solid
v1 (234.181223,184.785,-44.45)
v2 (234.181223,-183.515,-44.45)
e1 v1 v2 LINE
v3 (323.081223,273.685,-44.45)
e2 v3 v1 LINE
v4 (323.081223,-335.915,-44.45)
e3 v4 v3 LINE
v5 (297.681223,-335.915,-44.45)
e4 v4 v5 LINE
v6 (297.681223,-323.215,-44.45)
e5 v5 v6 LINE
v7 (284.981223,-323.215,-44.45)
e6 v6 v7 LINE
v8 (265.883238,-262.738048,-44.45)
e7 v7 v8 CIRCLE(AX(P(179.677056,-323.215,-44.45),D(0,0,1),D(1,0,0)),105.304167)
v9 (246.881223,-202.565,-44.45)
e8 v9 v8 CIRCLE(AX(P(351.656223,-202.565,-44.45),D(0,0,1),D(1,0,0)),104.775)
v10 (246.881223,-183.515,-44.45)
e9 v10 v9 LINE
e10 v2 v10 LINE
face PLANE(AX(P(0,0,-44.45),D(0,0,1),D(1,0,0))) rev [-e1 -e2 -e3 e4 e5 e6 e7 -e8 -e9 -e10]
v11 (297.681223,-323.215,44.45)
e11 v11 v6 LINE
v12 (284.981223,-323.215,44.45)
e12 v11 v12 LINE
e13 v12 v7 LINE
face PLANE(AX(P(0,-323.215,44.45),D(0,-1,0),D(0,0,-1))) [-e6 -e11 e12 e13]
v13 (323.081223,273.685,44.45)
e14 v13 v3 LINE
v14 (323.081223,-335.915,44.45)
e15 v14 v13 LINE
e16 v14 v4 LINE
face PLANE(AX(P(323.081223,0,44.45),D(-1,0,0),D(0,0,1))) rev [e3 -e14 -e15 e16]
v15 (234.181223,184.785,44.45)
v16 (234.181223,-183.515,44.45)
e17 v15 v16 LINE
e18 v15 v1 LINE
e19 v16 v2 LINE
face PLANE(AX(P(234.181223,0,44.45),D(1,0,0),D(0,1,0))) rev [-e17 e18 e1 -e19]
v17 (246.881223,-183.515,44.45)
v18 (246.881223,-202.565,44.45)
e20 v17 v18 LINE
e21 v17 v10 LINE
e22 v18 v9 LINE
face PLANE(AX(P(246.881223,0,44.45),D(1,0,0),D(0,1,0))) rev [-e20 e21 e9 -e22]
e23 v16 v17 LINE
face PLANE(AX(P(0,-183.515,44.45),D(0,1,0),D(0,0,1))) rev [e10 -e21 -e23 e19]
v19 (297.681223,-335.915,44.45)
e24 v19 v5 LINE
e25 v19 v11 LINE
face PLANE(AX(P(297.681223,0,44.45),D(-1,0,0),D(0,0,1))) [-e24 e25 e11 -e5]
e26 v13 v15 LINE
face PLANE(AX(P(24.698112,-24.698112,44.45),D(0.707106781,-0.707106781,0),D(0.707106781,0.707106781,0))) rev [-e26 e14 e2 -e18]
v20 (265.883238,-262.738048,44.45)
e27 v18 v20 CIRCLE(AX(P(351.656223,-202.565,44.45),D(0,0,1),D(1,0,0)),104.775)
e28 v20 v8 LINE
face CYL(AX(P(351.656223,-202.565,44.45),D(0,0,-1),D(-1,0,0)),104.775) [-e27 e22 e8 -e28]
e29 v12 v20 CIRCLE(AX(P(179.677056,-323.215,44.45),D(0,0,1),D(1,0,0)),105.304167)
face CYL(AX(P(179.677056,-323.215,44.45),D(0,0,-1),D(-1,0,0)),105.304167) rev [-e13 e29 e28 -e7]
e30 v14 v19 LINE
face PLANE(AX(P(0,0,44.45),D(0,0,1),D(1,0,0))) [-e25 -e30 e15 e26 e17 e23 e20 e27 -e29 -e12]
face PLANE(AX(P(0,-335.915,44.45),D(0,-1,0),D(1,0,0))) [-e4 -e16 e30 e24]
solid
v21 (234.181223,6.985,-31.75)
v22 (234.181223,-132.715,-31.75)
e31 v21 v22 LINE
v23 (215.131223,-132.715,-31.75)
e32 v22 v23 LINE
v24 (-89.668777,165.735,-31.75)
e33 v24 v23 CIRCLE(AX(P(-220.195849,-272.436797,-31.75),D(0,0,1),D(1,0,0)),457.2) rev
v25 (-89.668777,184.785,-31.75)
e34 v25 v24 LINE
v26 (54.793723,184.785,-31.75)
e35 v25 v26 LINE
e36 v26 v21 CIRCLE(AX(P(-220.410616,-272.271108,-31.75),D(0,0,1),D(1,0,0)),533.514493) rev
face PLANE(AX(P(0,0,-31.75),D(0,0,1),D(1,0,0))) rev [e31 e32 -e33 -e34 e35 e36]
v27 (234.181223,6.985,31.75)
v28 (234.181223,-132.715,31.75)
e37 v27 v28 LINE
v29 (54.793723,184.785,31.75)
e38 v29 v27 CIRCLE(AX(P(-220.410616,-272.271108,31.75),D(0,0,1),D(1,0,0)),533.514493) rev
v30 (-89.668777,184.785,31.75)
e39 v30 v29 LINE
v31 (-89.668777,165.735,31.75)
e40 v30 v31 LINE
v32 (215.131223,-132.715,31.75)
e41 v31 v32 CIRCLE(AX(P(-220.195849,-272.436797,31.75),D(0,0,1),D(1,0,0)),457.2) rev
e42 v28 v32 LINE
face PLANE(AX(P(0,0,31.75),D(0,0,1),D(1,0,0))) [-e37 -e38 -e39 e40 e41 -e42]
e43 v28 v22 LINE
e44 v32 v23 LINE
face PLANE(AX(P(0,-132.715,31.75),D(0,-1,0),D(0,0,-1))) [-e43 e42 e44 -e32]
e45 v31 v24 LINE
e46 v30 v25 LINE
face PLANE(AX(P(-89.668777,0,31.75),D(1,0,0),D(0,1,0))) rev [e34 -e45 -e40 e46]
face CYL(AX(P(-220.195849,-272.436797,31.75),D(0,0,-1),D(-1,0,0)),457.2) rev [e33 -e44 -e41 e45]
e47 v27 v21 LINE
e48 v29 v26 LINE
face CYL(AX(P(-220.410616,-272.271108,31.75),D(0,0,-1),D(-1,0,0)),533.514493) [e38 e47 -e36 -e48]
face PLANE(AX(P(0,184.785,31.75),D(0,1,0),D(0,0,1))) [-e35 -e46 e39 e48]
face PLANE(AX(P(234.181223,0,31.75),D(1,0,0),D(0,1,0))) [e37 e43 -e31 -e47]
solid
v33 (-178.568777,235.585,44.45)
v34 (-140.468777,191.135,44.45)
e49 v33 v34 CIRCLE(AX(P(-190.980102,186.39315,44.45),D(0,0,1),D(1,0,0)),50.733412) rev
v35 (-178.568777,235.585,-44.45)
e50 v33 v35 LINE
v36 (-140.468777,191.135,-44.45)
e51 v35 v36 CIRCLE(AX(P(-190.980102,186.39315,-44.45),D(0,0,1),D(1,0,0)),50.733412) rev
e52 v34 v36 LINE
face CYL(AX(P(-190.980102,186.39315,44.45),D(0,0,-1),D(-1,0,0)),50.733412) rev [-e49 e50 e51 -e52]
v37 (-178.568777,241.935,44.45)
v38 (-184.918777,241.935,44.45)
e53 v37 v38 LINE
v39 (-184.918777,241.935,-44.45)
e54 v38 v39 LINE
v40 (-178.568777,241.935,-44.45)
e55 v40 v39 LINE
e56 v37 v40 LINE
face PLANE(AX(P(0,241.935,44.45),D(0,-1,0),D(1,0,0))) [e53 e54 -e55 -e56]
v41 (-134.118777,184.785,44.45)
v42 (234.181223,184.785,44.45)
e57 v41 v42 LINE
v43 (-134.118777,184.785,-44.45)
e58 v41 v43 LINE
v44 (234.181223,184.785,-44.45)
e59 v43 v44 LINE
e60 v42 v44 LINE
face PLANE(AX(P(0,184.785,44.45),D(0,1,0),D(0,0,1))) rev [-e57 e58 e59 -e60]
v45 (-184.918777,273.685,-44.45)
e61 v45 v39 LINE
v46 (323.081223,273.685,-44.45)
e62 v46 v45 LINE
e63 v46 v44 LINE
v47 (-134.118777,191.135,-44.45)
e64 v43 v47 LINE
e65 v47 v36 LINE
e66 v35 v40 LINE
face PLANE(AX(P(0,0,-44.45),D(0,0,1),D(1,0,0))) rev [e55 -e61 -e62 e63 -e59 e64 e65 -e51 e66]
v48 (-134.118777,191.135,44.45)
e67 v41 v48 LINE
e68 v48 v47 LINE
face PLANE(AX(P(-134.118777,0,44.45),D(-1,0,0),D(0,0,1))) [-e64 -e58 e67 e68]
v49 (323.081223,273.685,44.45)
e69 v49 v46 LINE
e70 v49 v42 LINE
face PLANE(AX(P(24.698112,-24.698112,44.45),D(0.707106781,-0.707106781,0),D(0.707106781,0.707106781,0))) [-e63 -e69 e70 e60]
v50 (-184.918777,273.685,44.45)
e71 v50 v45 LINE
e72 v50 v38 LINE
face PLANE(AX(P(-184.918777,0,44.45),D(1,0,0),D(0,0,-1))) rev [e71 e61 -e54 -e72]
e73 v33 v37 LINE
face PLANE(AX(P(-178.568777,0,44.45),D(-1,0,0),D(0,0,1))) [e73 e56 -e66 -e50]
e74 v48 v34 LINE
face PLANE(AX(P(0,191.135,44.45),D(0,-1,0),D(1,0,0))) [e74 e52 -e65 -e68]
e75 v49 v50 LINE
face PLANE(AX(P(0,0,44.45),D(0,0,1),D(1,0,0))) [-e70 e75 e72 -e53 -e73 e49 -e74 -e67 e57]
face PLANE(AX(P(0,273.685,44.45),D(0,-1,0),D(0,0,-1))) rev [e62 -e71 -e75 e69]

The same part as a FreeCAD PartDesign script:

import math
import FreeCAD as App
import Part
import Sketcher
from FreeCAD import Vector
Q = App.Units.Quantity

doc = App.newDocument("Part")
params = doc.addObject("Spreadsheet::Sheet", "Params")
for row, (alias, value) in enumerate([
    ("sketch1_width", "20 in"),
    ("sketch1_width2", "14.5 in"),
    ("sketch1_width3", "0.25 in"),
    ("pad1_length", "3.5 in"),
    ("sketch2_radius", "18 in"),
    ("sketch2_height", "5.5 in"),
    ("sketch2_width", "0.75 in"),
    ("sketch2_width2", "5.6875 in"),
    ("pad2_length", "2.5 in"),
    ("sketch3_width", "1 in"),
    ("sketch3_height", "24 in"),
    ("sketch3_width2", "0.5 in"),
    ("sketch3_height2", "14.5 in"),
    ("sketch3_radius", "4.125 in"),
    ("pad3_length", "3.5 in"),
], start=1):
    params.set(f"A{row}", alias)
    params.set(f"B{row}", "=" + value)
    params.setAlias(f"B{row}", alias)

body = doc.addObject("PartDesign::Body", "Body")

# Sketch on XY plane
sketch1 = body.newObject("Sketcher::SketchObject", "Sketch")
sketch1.AttachmentSupport = (doc.getObject("XY_Plane"), [""])
sketch1.MapMode = "FlatFace"
sketch1.addGeometry([
    Part.LineSegment(Vector(-178.568777, 241.935, 0), Vector(-178.568777, 235.585, 0)),  # 0
    Part.ArcOfCircle(Part.Circle(Vector(-190.980102, 186.39315, 0), Vector(0, 0, 1), 50.733412), math.radians(5.363036), math.radians(75.839553)),  # 1
    Part.LineSegment(Vector(-140.468777, 191.135, 0), Vector(-134.118777, 191.135, 0)),  # 2
    Part.LineSegment(Vector(-134.118777, 191.135, 0), Vector(-134.118777, 184.785, 0)),  # 3
    Part.LineSegment(Vector(-134.118777, 184.785, 0), Vector(234.181223, 184.785, 0)),  # 4
    Part.LineSegment(Vector(234.181223, 184.785, 0), Vector(323.081223, 273.685, 0)),  # 5
    Part.LineSegment(Vector(323.081223, 273.685, 0), Vector(-184.918777, 273.685, 0)),  # 6
    Part.LineSegment(Vector(-184.918777, 273.685, 0), Vector(-184.918777, 241.935, 0)),  # 7
    Part.LineSegment(Vector(-184.918777, 241.935, 0), Vector(-178.568777, 241.935, 0)),  # 8
], False)
sketch1.addConstraint([
    Sketcher.Constraint("Coincident", 0, 2, 1, 2),
    Sketcher.Constraint("Coincident", 1, 1, 2, 1),
    Sketcher.Constraint("Coincident", 2, 2, 3, 1),
    Sketcher.Constraint("Coincident", 3, 2, 4, 1),
    Sketcher.Constraint("Coincident", 4, 2, 5, 1),
    Sketcher.Constraint("Coincident", 5, 2, 6, 1),
    Sketcher.Constraint("Coincident", 6, 2, 7, 1),
    Sketcher.Constraint("Coincident", 7, 2, 8, 1),
    Sketcher.Constraint("Coincident", 8, 2, 0, 1),
    Sketcher.Constraint("Vertical", 0),
    Sketcher.Constraint("Horizontal", 2),
    Sketcher.Constraint("Vertical", 3),
    Sketcher.Constraint("Horizontal", 4),
    Sketcher.Constraint("Horizontal", 6),
    Sketcher.Constraint("Vertical", 7),
    Sketcher.Constraint("Horizontal", 8),
    Sketcher.Constraint("Equal", 2, 8),
    Sketcher.Constraint("Equal", 8, 0),
    Sketcher.Constraint("Equal", 0, 3),
    Sketcher.Constraint("DistanceX", 6, 2, 6, 1, Q("20 in")),
    Sketcher.Constraint("DistanceX", 4, 1, 4, 2, Q("14.5 in")),
    Sketcher.Constraint("Angle", 5, Q("45 deg")),
    Sketcher.Constraint("DistanceY", 3, 2, 0, 2, Q("2 in")),
    Sketcher.Constraint("DistanceX", 2, 2, 5, 2, Q("18 in")),
    Sketcher.Constraint("DistanceX", 2, 1, 2, 2, Q("0.25 in")),
    Sketcher.Constraint("DistanceY", -1, 1, 0, 2, Q("9.275 in")),
    Sketcher.Constraint("Radius", 1, 50.733412),
    Sketcher.Constraint("DistanceX", 1, 3, -1, 1, 190.980102),
])
sketch1.setExpression("Constraints[19]", "Params.sketch1_width")
sketch1.setExpression("Constraints[20]", "Params.sketch1_width2")
sketch1.setExpression("Constraints[24]", "Params.sketch1_width3")
pad1 = body.newObject("PartDesign::Pad", "Pad")
pad1.Profile = sketch1
pad1.setExpression("Length", "Params.pad1_length")
pad1.Midplane = True
body2 = doc.addObject("PartDesign::Body", "Body001")

# Sketch on XY plane
sketch2 = body2.newObject("Sketcher::SketchObject", "Sketch001")
sketch2.AttachmentSupport = (doc.getObject("XY_Plane001"), [""])
sketch2.MapMode = "FlatFace"
sketch2.addGeometry([
    Part.ArcOfCircle(Part.Circle(Vector(-220.410616, -272.271108, 0), Vector(0, 0, 1), 533.514493), math.radians(31.562437), math.radians(58.946855)),  # 0
    Part.LineSegment(Vector(54.793723, 184.785, 0), Vector(-89.668777, 184.785, 0)),  # 1
    Part.LineSegment(Vector(-89.668777, 184.785, 0), Vector(-89.668777, 165.735, 0)),  # 2
    Part.ArcOfCircle(Part.Circle(Vector(-220.195849, -272.436797, 0), Vector(0, 0, 1), 457.2), math.radians(17.794459), math.radians(73.411723)),  # 3
    Part.LineSegment(Vector(215.131223, -132.715, 0), Vector(234.181223, -132.715, 0)),  # 4
    Part.LineSegment(Vector(234.181223, -132.715, 0), Vector(234.181223, 6.985, 0)),  # 5
], False)
sketch2.addConstraint([
    Sketcher.Constraint("Coincident", 0, 2, 1, 1),
    Sketcher.Constraint("Coincident", 1, 2, 2, 1),
    Sketcher.Constraint("Coincident", 2, 2, 3, 2),
    Sketcher.Constraint("Coincident", 3, 1, 4, 1),
    Sketcher.Constraint("Coincident", 4, 2, 5, 1),
    Sketcher.Constraint("Coincident", 5, 2, 0, 1),
    Sketcher.Constraint("Horizontal", 1),
    Sketcher.Constraint("Vertical", 2),
    Sketcher.Constraint("Horizontal", 4),
    Sketcher.Constraint("Vertical", 5),
    Sketcher.Constraint("Equal", 4, 2),
    Sketcher.Constraint("Radius", 3, Q("18 in")),
    Sketcher.Constraint("DistanceY", 5, 1, 5, 2, Q("5.5 in")),
    Sketcher.Constraint("DistanceX", 2, 2, 3, 1, Q("12 in")),
    Sketcher.Constraint("DistanceY", 5, 2, 0, 2, Q("7 in")),
    Sketcher.Constraint("DistanceX", 4, 1, 4, 2, Q("0.75 in")),
    Sketcher.Constraint("DistanceX", 1, 2, 1, 1, Q("5.6875 in")),
    Sketcher.Constraint("DistanceY", -1, 1, 1, 2, Q("7.275 in")),
    Sketcher.Constraint("Radius", 0, 533.514493),
    Sketcher.Constraint("DistanceX", 3, 3, -1, 1, 220.195849),
])
sketch2.setExpression("Constraints[11]", "Params.sketch2_radius")
sketch2.setExpression("Constraints[12]", "Params.sketch2_height")
sketch2.setExpression("Constraints[15]", "Params.sketch2_width")
sketch2.setExpression("Constraints[16]", "Params.sketch2_width2")
pad2 = body2.newObject("PartDesign::Pad", "Pad001")
pad2.Profile = sketch2
pad2.setExpression("Length", "Params.pad2_length")
pad2.Midplane = True
body3 = doc.addObject("PartDesign::Body", "Body002")

# Sketch on XY plane
sketch3 = body3.newObject("Sketcher::SketchObject", "Sketch002")
sketch3.AttachmentSupport = (doc.getObject("XY_Plane002"), [""])
sketch3.MapMode = "FlatFace"
sketch3.addGeometry([
    Part.LineSegment(Vector(323.081223, -335.915, 0), Vector(323.081223, 273.685, 0)),  # 0
    Part.LineSegment(Vector(323.081223, 273.685, 0), Vector(234.181223, 184.785, 0)),  # 1
    Part.LineSegment(Vector(234.181223, 184.785, 0), Vector(234.181223, -183.515, 0)),  # 2
    Part.LineSegment(Vector(234.181223, -183.515, 0), Vector(246.881223, -183.515, 0)),  # 3
    Part.LineSegment(Vector(246.881223, -183.515, 0), Vector(246.881223, -202.565, 0)),  # 4
    Part.ArcOfCircle(Part.Circle(Vector(351.656223, -202.565, 0), Vector(0, 0, 1), 104.775), math.radians(180), math.radians(215.051137)),  # 5
    Part.ArcOfCircle(Part.Circle(Vector(179.677056, -323.215, 0), Vector(0, 0, 1), 105.304167), math.radians(0), math.radians(35.051137)),  # 6
    Part.LineSegment(Vector(284.981223, -323.215, 0), Vector(297.681223, -323.215, 0)),  # 7
    Part.LineSegment(Vector(297.681223, -323.215, 0), Vector(297.681223, -335.915, 0)),  # 8
    Part.LineSegment(Vector(297.681223, -335.915, 0), Vector(323.081223, -335.915, 0)),  # 9
], False)
sketch3.addConstraint([
    Sketcher.Constraint("Coincident", 0, 2, 1, 1),
    Sketcher.Constraint("Coincident", 1, 2, 2, 1),
    Sketcher.Constraint("Coincident", 2, 2, 3, 1),
    Sketcher.Constraint("Coincident", 3, 2, 4, 1),
    Sketcher.Constraint("Tangent", 4, 2, 5, 1),
    Sketcher.Constraint("Tangent", 5, 2, 6, 2),
    Sketcher.Constraint("Coincident", 6, 1, 7, 1),
    Sketcher.Constraint("Coincident", 7, 2, 8, 1),
    Sketcher.Constraint("Coincident", 8, 2, 9, 1),
    Sketcher.Constraint("Coincident", 9, 2, 0, 1),
    Sketcher.Constraint("Vertical", 0),
    Sketcher.Constraint("Vertical", 2),
    Sketcher.Constraint("Horizontal", 3),
    Sketcher.Constraint("Vertical", 4),
    Sketcher.Constraint("Horizontal", 7),
    Sketcher.Constraint("Vertical", 8),
    Sketcher.Constraint("Horizontal", 9),
    Sketcher.Constraint("Equal", 3, 7),
    Sketcher.Constraint("Equal", 7, 8),
    Sketcher.Constraint("DistanceX", 9, 1, 9, 2, Q("1 in")),
    Sketcher.Constraint("DistanceY", 0, 1, 0, 2, Q("24 in")),
    Sketcher.Constraint("DistanceX", 3, 1, 3, 2, Q("0.5 in")),
    Sketcher.Constraint("DistanceY", 2, 2, 2, 1, Q("14.5 in")),
    Sketcher.Constraint("Angle", 1, Q("-135 deg")),
    Sketcher.Constraint("Radius", 5, Q("4.125 in")),
    Sketcher.Constraint("DistanceY", 6, 3, 1, 2, Q("20 in")),
    Sketcher.Constraint("DistanceY", 2, 2, 0, 2, Q("18 in")),
    Sketcher.Constraint("DistanceY", 4, 2, 4, 1, Q("0.75 in")),
    Sketcher.Constraint("DistanceY", 5, 3, -1, 1, Q("7.975 in")),
    Sketcher.Constraint("DistanceX", -1, 1, 6, 3, Q("7.0738999 in")),
])
sketch3.setExpression("Constraints[19]", "Params.sketch3_width")
sketch3.setExpression("Constraints[20]", "Params.sketch3_height")
sketch3.setExpression("Constraints[21]", "Params.sketch3_width2")
sketch3.setExpression("Constraints[22]", "Params.sketch3_height2")
sketch3.setExpression("Constraints[24]", "Params.sketch3_radius")
pad3 = body3.newObject("PartDesign::Pad", "Pad002")
pad3.Profile = sketch3
pad3.setExpression("Length", "Params.pad3_length")
pad3.Midplane = True

doc.recompute()
